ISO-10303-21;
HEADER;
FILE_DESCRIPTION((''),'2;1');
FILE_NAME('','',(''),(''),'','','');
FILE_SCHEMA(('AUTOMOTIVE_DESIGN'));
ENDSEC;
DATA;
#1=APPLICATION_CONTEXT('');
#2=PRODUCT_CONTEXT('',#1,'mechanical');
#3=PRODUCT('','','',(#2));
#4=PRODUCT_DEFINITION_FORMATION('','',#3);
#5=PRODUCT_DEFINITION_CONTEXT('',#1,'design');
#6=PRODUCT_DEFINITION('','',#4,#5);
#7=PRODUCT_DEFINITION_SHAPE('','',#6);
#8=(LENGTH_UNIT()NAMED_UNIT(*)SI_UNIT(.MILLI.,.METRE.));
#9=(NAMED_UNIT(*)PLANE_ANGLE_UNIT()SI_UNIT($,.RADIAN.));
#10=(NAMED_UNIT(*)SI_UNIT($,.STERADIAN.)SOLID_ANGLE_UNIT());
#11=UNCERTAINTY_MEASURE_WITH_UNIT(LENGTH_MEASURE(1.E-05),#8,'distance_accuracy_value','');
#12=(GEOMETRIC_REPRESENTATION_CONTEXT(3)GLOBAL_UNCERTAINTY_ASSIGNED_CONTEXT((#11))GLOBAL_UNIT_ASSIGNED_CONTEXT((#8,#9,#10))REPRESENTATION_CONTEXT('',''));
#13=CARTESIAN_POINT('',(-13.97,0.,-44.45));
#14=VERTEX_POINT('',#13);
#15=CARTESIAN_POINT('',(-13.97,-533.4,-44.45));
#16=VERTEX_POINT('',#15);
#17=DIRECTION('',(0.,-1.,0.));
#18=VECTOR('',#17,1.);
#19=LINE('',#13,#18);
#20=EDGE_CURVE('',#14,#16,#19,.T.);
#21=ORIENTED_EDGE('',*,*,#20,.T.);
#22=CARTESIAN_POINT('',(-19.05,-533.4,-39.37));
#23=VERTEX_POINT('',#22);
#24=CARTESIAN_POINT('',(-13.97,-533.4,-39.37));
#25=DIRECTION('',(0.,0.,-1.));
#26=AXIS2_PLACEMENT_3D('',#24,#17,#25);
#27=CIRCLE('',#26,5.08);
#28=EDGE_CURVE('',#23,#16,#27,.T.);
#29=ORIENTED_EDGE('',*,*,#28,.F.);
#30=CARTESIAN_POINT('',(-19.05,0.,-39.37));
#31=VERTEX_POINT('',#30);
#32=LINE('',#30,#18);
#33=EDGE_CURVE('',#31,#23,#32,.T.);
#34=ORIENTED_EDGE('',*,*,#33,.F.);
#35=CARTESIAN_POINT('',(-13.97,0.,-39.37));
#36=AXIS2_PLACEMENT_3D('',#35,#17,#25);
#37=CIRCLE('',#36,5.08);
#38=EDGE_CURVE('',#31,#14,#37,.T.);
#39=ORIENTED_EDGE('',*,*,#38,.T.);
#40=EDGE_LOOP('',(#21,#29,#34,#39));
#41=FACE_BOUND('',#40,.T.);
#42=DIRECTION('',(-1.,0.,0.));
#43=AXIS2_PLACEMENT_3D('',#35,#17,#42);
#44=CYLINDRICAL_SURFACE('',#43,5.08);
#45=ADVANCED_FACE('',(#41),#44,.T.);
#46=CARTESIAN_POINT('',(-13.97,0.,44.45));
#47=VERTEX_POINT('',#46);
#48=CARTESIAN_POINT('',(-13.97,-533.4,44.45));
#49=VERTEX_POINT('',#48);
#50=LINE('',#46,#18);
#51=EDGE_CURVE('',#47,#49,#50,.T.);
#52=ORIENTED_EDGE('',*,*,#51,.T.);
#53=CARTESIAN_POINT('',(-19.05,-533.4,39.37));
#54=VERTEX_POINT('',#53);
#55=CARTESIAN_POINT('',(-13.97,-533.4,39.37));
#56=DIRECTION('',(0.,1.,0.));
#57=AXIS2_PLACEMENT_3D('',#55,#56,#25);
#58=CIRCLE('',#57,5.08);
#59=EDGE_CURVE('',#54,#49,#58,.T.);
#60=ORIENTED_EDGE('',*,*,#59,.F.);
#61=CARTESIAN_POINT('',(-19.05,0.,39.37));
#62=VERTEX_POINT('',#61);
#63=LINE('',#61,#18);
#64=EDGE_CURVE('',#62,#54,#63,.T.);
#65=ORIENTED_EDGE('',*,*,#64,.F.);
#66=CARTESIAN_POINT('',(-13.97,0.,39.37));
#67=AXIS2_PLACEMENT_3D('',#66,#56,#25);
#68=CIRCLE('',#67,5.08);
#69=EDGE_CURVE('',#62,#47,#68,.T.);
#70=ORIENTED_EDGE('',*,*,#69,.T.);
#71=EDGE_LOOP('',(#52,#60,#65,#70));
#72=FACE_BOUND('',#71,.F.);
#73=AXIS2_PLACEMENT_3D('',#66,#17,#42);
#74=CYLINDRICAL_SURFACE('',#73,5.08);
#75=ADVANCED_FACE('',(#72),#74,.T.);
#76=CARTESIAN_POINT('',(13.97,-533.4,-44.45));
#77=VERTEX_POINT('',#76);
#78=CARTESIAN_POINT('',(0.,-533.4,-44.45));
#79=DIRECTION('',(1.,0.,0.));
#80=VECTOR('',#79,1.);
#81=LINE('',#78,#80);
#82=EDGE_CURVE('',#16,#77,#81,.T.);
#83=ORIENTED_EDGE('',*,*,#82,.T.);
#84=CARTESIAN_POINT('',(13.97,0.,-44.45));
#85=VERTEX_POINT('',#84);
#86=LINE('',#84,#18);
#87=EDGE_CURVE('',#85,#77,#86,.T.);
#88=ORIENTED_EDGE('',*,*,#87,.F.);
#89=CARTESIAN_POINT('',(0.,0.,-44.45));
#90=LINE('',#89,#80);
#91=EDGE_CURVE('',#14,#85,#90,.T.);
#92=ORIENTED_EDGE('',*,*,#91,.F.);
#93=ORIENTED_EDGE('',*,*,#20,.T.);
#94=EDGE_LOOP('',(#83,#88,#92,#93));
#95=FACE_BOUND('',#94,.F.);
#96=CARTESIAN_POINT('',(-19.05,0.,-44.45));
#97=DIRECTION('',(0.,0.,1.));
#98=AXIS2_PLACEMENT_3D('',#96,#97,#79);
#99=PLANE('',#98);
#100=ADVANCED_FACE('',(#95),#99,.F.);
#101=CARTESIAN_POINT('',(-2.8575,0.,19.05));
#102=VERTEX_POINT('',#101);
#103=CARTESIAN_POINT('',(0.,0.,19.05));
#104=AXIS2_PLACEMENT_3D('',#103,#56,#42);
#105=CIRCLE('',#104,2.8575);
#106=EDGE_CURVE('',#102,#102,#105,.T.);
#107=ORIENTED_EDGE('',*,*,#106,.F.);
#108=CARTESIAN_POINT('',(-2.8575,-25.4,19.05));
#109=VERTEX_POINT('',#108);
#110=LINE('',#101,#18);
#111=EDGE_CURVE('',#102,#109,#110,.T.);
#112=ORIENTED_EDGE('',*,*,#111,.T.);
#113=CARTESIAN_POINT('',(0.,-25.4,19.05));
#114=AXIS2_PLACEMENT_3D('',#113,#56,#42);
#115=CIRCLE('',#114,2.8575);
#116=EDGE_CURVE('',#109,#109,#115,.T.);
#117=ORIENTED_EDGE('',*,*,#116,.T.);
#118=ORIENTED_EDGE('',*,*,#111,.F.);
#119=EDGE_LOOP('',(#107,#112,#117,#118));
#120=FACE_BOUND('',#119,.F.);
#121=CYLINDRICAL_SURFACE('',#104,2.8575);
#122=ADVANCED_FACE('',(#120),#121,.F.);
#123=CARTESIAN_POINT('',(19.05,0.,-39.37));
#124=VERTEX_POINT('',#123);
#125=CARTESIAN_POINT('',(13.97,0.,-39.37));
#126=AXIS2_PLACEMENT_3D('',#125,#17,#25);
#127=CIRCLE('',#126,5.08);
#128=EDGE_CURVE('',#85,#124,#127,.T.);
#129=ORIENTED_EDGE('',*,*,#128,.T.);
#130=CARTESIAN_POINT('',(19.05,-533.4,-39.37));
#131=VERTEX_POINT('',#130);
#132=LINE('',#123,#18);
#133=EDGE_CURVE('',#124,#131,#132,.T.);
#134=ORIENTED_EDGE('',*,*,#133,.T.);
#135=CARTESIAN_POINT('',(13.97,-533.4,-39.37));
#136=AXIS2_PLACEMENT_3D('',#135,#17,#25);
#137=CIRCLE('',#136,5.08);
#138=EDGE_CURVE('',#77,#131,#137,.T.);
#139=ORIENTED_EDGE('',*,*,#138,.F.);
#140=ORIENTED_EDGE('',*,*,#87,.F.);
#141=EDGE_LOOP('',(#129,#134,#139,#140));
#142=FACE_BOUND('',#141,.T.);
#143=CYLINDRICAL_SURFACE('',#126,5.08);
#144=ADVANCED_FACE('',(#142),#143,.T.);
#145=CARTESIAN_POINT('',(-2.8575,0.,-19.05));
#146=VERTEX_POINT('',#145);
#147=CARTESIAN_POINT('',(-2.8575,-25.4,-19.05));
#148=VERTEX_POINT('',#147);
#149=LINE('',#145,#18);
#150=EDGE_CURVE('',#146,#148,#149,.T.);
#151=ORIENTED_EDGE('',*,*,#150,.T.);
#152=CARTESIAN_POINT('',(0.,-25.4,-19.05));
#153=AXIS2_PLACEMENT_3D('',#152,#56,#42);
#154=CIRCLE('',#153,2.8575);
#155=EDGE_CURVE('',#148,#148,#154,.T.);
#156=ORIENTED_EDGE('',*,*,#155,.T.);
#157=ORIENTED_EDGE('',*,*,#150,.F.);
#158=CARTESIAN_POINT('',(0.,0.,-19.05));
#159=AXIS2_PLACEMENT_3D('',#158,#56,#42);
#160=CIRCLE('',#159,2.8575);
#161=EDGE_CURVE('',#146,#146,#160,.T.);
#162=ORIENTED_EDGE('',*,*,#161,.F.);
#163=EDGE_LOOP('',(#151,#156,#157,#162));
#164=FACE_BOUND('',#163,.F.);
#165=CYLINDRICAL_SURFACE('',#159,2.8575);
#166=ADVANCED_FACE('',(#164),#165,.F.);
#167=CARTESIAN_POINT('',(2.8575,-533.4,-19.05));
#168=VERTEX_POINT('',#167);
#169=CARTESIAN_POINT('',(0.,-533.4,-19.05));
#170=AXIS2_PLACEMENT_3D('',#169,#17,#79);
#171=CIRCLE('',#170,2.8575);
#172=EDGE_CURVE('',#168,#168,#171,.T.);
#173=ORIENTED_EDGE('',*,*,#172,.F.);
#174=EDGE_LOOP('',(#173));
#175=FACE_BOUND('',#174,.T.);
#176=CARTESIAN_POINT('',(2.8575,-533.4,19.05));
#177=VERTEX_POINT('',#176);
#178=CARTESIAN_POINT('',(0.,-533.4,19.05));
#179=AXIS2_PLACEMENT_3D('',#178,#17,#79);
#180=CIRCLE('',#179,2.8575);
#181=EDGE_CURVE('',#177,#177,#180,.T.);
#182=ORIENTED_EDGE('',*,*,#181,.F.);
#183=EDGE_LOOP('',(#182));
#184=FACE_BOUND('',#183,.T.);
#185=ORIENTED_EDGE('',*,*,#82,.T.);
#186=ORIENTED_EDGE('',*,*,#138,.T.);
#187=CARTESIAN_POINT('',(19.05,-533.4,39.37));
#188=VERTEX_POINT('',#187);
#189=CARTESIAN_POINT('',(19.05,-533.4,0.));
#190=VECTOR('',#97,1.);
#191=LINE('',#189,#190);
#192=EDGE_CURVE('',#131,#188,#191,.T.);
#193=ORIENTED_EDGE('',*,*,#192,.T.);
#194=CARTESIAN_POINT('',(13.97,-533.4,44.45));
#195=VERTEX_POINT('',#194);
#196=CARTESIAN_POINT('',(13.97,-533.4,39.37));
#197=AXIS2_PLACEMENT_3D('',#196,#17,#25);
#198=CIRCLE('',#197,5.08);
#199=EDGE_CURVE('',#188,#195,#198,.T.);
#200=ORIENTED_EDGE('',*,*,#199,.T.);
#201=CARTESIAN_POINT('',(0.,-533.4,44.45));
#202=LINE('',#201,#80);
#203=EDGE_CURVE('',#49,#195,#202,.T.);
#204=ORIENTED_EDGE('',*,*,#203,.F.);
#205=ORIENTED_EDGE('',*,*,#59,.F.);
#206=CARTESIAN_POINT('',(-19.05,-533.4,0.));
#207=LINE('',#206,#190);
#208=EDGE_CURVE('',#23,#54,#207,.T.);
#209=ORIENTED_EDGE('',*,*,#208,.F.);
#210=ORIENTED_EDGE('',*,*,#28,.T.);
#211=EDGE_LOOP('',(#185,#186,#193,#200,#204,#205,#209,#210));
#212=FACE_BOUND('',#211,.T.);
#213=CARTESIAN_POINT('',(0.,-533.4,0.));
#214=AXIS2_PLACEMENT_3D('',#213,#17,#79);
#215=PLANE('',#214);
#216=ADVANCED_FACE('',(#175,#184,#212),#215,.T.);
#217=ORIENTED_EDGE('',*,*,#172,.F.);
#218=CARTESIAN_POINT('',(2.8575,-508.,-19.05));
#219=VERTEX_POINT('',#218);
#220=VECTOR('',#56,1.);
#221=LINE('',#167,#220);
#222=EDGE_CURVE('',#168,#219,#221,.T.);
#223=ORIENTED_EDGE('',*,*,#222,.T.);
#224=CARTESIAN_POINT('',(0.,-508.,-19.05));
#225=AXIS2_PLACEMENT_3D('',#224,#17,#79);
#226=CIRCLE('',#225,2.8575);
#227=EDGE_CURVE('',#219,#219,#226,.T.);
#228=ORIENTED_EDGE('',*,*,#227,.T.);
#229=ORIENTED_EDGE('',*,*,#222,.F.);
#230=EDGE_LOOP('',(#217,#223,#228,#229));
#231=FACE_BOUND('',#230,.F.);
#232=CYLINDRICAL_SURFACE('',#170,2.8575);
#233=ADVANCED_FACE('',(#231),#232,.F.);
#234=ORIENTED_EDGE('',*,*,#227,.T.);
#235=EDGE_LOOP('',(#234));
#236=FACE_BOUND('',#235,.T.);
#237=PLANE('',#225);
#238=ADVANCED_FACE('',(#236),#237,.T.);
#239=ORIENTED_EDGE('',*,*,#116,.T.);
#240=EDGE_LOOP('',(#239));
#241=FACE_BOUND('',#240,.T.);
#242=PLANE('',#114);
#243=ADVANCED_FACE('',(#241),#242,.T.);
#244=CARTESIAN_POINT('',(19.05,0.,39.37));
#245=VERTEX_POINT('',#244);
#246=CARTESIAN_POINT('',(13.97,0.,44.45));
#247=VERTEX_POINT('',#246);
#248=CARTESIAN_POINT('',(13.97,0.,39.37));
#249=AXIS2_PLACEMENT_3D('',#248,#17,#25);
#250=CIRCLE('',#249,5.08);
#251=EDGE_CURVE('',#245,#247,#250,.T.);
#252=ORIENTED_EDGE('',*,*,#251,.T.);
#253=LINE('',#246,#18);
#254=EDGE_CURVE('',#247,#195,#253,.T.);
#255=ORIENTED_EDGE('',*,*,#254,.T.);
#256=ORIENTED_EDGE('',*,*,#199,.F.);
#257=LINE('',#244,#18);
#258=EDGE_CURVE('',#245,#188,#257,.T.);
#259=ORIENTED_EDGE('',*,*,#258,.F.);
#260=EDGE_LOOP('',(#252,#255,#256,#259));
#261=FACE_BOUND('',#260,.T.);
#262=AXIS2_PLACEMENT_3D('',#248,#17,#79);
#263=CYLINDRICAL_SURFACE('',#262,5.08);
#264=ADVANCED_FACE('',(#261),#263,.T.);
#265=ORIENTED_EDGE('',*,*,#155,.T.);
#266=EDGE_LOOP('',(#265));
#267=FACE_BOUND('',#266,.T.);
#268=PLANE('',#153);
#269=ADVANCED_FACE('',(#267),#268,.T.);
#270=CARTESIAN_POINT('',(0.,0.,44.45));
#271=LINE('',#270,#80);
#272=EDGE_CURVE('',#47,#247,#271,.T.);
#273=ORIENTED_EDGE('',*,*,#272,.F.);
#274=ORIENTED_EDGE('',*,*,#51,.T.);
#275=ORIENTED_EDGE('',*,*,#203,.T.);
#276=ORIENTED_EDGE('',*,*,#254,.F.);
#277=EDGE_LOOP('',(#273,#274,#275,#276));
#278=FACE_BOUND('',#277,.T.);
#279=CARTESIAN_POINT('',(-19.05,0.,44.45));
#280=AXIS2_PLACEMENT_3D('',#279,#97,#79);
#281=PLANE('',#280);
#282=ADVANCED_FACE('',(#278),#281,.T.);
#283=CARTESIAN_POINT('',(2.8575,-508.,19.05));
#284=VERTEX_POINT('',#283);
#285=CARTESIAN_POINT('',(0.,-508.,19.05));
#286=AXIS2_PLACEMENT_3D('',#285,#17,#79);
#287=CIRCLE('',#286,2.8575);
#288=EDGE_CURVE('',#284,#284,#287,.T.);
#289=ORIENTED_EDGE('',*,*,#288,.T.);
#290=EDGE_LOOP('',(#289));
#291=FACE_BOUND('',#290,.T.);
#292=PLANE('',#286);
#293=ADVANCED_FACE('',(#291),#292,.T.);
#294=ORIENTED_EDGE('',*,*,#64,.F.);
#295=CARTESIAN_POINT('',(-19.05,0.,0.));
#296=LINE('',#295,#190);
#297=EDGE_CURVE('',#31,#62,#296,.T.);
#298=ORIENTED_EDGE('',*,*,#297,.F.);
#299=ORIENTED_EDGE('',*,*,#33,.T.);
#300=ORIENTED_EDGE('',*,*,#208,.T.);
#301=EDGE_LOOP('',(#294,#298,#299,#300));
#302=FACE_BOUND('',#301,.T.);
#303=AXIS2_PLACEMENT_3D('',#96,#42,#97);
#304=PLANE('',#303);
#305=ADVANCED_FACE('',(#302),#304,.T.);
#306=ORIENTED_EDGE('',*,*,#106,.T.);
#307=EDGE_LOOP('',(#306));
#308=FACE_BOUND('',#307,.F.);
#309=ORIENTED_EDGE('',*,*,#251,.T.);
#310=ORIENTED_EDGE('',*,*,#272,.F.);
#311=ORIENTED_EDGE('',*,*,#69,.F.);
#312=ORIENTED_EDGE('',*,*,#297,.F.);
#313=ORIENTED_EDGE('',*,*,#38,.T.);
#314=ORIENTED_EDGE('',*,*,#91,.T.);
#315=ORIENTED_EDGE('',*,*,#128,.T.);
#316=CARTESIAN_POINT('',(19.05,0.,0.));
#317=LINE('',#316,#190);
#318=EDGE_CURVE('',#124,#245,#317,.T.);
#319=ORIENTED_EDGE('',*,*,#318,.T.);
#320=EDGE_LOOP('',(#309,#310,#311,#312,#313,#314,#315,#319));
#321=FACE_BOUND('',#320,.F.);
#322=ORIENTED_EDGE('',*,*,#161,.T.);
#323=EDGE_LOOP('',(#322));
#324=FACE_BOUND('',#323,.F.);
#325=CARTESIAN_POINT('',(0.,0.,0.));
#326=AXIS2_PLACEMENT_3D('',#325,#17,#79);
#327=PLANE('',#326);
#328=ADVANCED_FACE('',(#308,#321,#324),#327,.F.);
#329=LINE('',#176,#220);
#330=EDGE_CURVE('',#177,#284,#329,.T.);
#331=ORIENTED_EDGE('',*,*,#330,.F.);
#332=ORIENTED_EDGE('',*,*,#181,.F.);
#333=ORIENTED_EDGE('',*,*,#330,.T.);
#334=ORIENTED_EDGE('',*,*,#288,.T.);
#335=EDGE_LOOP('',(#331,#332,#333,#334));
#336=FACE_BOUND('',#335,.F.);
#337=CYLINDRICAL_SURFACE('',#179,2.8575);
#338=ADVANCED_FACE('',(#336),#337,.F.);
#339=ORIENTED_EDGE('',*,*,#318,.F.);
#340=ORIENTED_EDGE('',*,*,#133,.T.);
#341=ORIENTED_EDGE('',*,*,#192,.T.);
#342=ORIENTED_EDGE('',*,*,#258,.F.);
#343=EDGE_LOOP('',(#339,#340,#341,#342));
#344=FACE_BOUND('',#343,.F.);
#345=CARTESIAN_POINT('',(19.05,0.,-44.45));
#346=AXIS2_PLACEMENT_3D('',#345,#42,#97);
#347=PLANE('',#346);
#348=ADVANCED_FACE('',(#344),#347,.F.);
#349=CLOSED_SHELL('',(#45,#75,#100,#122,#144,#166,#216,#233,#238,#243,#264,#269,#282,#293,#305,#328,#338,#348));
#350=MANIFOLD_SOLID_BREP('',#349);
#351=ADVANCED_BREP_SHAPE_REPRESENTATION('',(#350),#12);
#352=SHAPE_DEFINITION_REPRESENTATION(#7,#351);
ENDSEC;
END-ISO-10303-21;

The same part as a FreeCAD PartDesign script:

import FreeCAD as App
import Part
import Sketcher
Q = App.Units.Quantity


def edges_at(feature, points):
    """Names of the edges that pass closest to the given points."""
    edges = feature.Shape.Edges
    near = lambda p: min(range(len(edges)), key=lambda i: edges[i].distToShape(Part.Vertex(*p))[0])
    return sorted({f"Edge{near(p) + 1}" for p in points})

doc = App.newDocument("Part")
body = doc.addObject("PartDesign::Body", "Body")

# Sketch on XZ plane
sketch1 = doc.addObject("Sketcher::SketchObject", "Sketch")
body.addObject(sketch1)
sketch1.AttachmentSupport = (doc.XZ_Plane, [""])
sketch1.MapMode = "FlatFace"
sketch1.addGeometry([
    Part.LineSegment(App.Vector(-19.05, 44.45, 0), App.Vector(-19.05, -44.45, 0)),
    Part.LineSegment(App.Vector(-19.05, -44.45, 0), App.Vector(19.05, -44.45, 0)),
    Part.LineSegment(App.Vector(19.05, -44.45, 0), App.Vector(19.05, 44.45, 0)),
    Part.LineSegment(App.Vector(19.05, 44.45, 0), App.Vector(-19.05, 44.45, 0)),
], False)
sketch1.addConstraint([
    Sketcher.Constraint("Coincident", 0, 2, 1, 1),
    Sketcher.Constraint("Coincident", 1, 2, 2, 1),
    Sketcher.Constraint("Coincident", 2, 2, 3, 1),
    Sketcher.Constraint("Coincident", 3, 2, 0, 1),
    Sketcher.Constraint("Vertical", 0),
    Sketcher.Constraint("Horizontal", 1),
    Sketcher.Constraint("Vertical", 2),
    Sketcher.Constraint("Horizontal", 3),
    Sketcher.Constraint("Symmetric", 0, 2, 2, 2, -1, 1),
    Sketcher.Constraint("DistanceX", 1, 1, 1, 2, Q("1.5 in")),
    Sketcher.Constraint("DistanceY", 0, 2, 0, 1, Q("3.5 in")),
])
pad1 = doc.addObject("PartDesign::Pad", "Pad")
body.addObject(pad1)
pad1.Profile = sketch1
pad1.Length = Q("21 in")
doc.recompute()

fillet = doc.addObject("PartDesign::Fillet", "Fillet")
body.addObject(fillet)
fillet.Base = (pad1, edges_at(pad1, [
    (19.05, -266.7, 44.45),
    (-19.05, -266.7, 44.45),
    (19.05, -266.7, -44.45),
    (-19.05, -266.7, -44.45),
]))
fillet.Radius = Q("0.2 in")

# Sketch on XZ plane
sketch2 = doc.addObject("Sketcher::SketchObject", "Sketch001")
body.addObject(sketch2)
sketch2.AttachmentSupport = (doc.XZ_Plane, [""])
sketch2.MapMode = "FlatFace"
sketch2.AttachmentOffset = App.Placement(App.Vector(0, 0, 21 * 25.4), App.Rotation())
sketch2.addGeometry([
    Part.Circle(App.Vector(0, -19.05, 0), App.Vector(0, 0, 1), 2.8575),
    Part.Circle(App.Vector(0, 19.05, 0), App.Vector(0, 0, 1), 2.8575),
], False)
sketch2.addConstraint([
    Sketcher.Constraint("Equal", 0, 1),
    Sketcher.Constraint("Symmetric", 0, 3, 1, 3, -1, 1),
    Sketcher.Constraint("PointOnObject", 0, 3, -2),
    Sketcher.Constraint("Diameter", 0, Q("0.225 in")),
    Sketcher.Constraint("DistanceY", 0, 3, 1, 3, Q("1.5 in")),
])
pocket1 = doc.addObject("PartDesign::Pocket", "Pocket")
body.addObject(pocket1)
pocket1.Profile = sketch2
pocket1.Length = Q("1 in")

# Sketch on XZ plane
sketch3 = doc.addObject("Sketcher::SketchObject", "Sketch002")
body.addObject(sketch3)
sketch3.AttachmentSupport = (doc.XZ_Plane, [""])
sketch3.MapMode = "FlatFace"
sketch3.addGeometry([
    Part.Circle(App.Vector(0, 19.05, 0), App.Vector(0, 0, 1), 2.8575),
    Part.Circle(App.Vector(0, -19.05, 0), App.Vector(0, 0, 1), 2.8575),
], False)
sketch3.addConstraint([
    Sketcher.Constraint("Equal", 0, 1),
    Sketcher.Constraint("Symmetric", 0, 3, 1, 3, -1, 1),
    Sketcher.Constraint("PointOnObject", 0, 3, -2),
    Sketcher.Constraint("Diameter", 0, Q("0.225 in")),
    Sketcher.Constraint("DistanceY", 1, 3, 0, 3, Q("1.5 in")),
])
pocket2 = doc.addObject("PartDesign::Pocket", "Pocket001")
body.addObject(pocket2)
pocket2.Profile = sketch3
pocket2.Length = Q("1 in")
pocket2.Reversed = True

doc.recompute()
